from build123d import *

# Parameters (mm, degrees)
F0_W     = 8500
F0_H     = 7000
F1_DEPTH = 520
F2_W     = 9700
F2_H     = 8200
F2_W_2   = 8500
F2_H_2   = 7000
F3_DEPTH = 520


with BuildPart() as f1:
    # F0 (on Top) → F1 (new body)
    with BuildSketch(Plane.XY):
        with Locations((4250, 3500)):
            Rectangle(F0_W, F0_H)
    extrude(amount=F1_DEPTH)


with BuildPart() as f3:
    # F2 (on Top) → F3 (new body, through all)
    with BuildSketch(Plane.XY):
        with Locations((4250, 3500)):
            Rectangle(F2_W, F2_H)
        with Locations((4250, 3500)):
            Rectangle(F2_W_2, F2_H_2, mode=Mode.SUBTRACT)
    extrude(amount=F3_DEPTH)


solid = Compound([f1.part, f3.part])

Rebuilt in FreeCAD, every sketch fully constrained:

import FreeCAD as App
import Part
import Sketcher
Q = App.Units.Quantity


def add_polygon(sketch, points):
    """Adds a closed chain of lines whose ends are joined by coincident constraints."""
    first, n = sketch.GeometryCount, len(points)
    for a, b in zip(points, points[1:] + points[:1]):
        sketch.addGeometry(Part.LineSegment(App.Vector(*a, 0), App.Vector(*b, 0)), False)
    for i in range(n):
        sketch.addConstraint(Sketcher.Constraint("Coincident", first + i, 2, first + (i + 1) % n, 1))

doc = App.newDocument("Part")
body = doc.addObject("PartDesign::Body", "Body")

sketch1 = doc.addObject("Sketcher::SketchObject", "Sketch")
body.addObject(sketch1)
sketch1.AttachmentSupport = (doc.XY_Plane, [""])
sketch1.MapMode = "FlatFace"
add_polygon(sketch1, [(0, 7000), (0, 0), (8500, 0), (8500, 7000)])
sketch1.addConstraint(Sketcher.Constraint("Vertical", 0))
sketch1.addConstraint(Sketcher.Constraint("Horizontal", 1))
sketch1.addConstraint(Sketcher.Constraint("Vertical", 2))
sketch1.addConstraint(Sketcher.Constraint("Horizontal", 3))
sketch1.addConstraint(Sketcher.Constraint("Coincident", 0, 2, -1, 1))
sketch1.addConstraint(Sketcher.Constraint("DistanceX", 1, 1, 1, 2, Q("8500 mm")))
sketch1.addConstraint(Sketcher.Constraint("DistanceY", 0, 2, 0, 1, Q("7000 mm")))
pad1 = doc.addObject("PartDesign::Pad", "Pad")
body.addObject(pad1)
pad1.Profile = sketch1
pad1.Length = 520
body2 = doc.addObject("PartDesign::Body", "Body001")

sketch2 = doc.addObject("Sketcher::SketchObject", "Sketch001")
body2.addObject(sketch2)
sketch2.AttachmentSupport = (doc.getObject("XY_Plane001"), [""])
sketch2.MapMode = "FlatFace"
add_polygon(sketch2, [(-600, 7600), (-600, -600), (9100, -600), (9100, 7600)])
add_polygon(sketch2, [(8500, 0), (0, 0), (0, 7000), (8500, 7000)])
sketch2.addConstraint(Sketcher.Constraint("Vertical", 0))
sketch2.addConstraint(Sketcher.Constraint("Horizontal", 1))
sketch2.addConstraint(Sketcher.Constraint("Vertical", 2))
sketch2.addConstraint(Sketcher.Constraint("Horizontal", 3))
sketch2.addConstraint(Sketcher.Constraint("Horizontal", 4))
sketch2.addConstraint(Sketcher.Constraint("Vertical", 5))
sketch2.addConstraint(Sketcher.Constraint("Horizontal", 6))
sketch2.addConstraint(Sketcher.Constraint("Vertical", 7))
sketch2.addConstraint(Sketcher.Constraint("Coincident", 4, 2, -1, 1))
sketch2.addConstraint(Sketcher.Constraint("DistanceX", 1, 1, 1, 2, Q("9700 mm")))
sketch2.addConstraint(Sketcher.Constraint("DistanceX", 4, 2, 4, 1, Q("8500 mm")))
sketch2.addConstraint(Sketcher.Constraint("DistanceY", 0, 2, 0, 1, Q("8200 mm")))
sketch2.addConstraint(Sketcher.Constraint("DistanceY", 5, 1, 5, 2, Q("7000 mm")))
sketch2.addConstraint(Sketcher.Constraint("DistanceX", 0, 2, -1, 1, Q("600 mm")))
sketch2.addConstraint(Sketcher.Constraint("DistanceY", 0, 2, -1, 1, Q("600 mm")))
pad2 = doc.addObject("PartDesign::Pad", "Pad001")
body2.addObject(pad2)
pad2.Profile = sketch2
pad2.Length = 520

doc.recompute()
